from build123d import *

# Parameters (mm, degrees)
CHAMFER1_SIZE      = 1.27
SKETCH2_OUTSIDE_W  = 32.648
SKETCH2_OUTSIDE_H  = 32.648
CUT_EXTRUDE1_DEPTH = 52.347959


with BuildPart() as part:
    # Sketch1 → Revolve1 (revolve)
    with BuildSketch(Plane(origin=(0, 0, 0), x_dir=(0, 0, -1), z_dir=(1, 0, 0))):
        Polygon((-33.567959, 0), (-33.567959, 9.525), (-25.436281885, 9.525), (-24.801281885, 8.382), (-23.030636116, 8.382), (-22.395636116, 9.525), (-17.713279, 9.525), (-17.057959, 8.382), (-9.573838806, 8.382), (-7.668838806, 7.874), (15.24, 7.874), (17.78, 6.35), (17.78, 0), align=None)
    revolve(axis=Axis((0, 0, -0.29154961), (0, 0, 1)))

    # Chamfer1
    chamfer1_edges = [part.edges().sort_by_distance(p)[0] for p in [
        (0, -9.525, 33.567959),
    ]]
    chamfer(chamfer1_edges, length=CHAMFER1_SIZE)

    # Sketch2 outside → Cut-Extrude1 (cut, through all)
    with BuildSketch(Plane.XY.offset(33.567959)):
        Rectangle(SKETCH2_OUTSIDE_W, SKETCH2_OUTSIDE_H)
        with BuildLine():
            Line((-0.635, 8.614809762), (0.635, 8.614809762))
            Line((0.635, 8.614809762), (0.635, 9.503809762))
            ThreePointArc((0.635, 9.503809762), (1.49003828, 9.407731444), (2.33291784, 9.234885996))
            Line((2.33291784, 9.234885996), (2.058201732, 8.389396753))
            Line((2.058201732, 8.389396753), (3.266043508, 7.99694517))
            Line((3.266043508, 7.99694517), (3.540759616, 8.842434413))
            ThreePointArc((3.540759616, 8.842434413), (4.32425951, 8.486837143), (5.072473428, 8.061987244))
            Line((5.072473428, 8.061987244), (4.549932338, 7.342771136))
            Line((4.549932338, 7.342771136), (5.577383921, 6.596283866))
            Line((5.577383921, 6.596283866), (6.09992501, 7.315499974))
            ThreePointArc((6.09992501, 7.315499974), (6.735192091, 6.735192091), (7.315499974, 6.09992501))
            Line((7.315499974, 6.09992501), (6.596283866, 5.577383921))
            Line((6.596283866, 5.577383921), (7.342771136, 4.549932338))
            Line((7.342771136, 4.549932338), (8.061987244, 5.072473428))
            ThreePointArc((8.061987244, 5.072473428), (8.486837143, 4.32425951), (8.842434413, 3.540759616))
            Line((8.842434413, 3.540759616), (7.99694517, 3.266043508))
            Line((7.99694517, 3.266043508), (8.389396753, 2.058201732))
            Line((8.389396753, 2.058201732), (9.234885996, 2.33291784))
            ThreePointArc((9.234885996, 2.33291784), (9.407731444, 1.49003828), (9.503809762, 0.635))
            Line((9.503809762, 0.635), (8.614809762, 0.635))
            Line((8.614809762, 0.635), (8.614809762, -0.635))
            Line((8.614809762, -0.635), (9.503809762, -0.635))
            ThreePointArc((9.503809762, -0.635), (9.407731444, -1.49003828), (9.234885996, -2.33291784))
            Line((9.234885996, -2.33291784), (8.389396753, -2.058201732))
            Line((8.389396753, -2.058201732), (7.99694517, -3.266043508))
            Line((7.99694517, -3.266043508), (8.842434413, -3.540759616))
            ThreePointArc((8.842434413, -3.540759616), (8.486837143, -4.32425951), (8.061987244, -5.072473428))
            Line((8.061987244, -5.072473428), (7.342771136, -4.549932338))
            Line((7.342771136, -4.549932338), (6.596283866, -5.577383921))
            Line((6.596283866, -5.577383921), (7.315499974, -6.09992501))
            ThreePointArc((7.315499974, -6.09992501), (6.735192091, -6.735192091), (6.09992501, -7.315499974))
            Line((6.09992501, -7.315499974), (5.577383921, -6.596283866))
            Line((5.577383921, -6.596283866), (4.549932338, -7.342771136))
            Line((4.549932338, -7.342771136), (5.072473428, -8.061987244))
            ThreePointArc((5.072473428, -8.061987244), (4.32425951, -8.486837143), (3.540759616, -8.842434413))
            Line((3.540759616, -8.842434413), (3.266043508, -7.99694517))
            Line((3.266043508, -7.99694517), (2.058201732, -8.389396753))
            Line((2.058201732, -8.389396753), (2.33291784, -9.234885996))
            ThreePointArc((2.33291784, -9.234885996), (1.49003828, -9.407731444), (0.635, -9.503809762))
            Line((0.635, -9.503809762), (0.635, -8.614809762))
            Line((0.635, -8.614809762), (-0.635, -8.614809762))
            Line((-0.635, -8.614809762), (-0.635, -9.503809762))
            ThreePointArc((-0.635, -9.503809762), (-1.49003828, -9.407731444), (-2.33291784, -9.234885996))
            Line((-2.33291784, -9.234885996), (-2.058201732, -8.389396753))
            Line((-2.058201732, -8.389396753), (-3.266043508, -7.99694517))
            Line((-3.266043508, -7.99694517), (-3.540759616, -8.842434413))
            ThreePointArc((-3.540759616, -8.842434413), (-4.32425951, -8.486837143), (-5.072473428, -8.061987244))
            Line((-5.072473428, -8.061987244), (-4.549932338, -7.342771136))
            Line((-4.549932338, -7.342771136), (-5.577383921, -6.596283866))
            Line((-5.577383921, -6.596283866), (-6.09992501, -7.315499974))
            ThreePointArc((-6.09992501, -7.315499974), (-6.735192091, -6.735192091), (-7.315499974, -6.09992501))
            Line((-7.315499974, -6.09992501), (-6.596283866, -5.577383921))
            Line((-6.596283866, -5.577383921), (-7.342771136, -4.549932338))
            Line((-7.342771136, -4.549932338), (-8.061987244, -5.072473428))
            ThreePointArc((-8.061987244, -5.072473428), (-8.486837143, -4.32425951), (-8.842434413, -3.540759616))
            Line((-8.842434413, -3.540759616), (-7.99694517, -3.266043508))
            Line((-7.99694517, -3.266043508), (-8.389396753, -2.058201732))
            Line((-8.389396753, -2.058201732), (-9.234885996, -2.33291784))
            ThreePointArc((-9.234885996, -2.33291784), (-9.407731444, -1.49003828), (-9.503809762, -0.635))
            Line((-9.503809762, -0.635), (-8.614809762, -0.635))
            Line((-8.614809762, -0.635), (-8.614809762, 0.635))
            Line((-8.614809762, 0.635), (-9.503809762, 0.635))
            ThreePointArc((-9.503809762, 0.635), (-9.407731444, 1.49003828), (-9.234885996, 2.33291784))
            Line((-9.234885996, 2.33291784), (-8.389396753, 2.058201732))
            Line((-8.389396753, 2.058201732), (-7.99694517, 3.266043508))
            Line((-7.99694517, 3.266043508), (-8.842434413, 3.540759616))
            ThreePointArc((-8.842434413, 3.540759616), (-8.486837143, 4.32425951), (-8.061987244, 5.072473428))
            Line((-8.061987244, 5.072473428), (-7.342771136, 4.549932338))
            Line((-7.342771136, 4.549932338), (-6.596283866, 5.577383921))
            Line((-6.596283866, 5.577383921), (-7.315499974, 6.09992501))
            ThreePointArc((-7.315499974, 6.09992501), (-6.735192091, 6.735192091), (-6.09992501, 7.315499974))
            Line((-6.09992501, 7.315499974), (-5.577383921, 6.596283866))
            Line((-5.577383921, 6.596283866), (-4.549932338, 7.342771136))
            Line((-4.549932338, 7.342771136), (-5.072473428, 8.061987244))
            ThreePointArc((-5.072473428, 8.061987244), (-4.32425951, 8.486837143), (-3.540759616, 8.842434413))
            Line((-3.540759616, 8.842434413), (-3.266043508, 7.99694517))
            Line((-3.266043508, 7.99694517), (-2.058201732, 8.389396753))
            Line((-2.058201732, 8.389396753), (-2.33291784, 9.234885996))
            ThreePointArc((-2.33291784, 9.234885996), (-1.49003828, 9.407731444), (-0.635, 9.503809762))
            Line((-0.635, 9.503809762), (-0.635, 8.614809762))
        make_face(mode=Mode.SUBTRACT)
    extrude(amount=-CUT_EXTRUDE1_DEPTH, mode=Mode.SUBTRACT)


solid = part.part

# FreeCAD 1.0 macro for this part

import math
import FreeCAD as App
import Part
import Sketcher
from FreeCAD import Vector
Q = App.Units.Quantity


def edges_at(feature, points):
    """Names of the edges that pass closest to the given points."""
    edges = feature.Shape.Edges
    near = lambda p: min(range(len(edges)), key=lambda i: edges[i].distToShape(Part.Vertex(*p))[0])
    return sorted({f"Edge{near(p) + 1}" for p in points})


def add_polygon(sketch, points):
    """Adds a closed chain of lines whose ends are joined by coincident constraints."""
    first, n = sketch.GeometryCount, len(points)
    for a, b in zip(points, points[1:] + points[:1]):
        sketch.addGeometry(Part.LineSegment(App.Vector(*a, 0), App.Vector(*b, 0)), False)
    for i in range(n):
        sketch.addConstraint(Sketcher.Constraint("Coincident", first + i, 2, first + (i + 1) % n, 1))

doc = App.newDocument("Part")
body = doc.addObject("PartDesign::Body", "Body")

sketch1 = body.newObject("Sketcher::SketchObject", "Sketch")
sketch1.AttachmentSupport = (doc.getObject("YZ_Plane"), [""])
sketch1.MapMode = "FlatFace"
add_polygon(sketch1, [(9.5, 33.6), (0, 33.6), (0, -17.8), (6.3, -17.8), (7.9, -15.2), (7.9, 7.7), (8.4, 9.6), (8.4, 17.1), (9.5, 17.7), (9.5, 22.4), (8.4, 23), (8.4, 24.8), (9.5, 25.4)])
sketch1.addConstraint([
    Sketcher.Constraint("Horizontal", 0),
    Sketcher.Constraint("Vertical", 1),
    Sketcher.Constraint("Horizontal", 2),
    Sketcher.Constraint("Vertical", 4),
    Sketcher.Constraint("Vertical", 6),
    Sketcher.Constraint("Vertical", 8),
    Sketcher.Constraint("Vertical", 10),
    Sketcher.Constraint("Vertical", 12),
    Sketcher.Constraint("PointOnObject", 0, 2, -2),
    Sketcher.Constraint("Vertical", 6, 2, 9, 2),
    Sketcher.Constraint("Vertical", 8, 2, 11, 2),
    Sketcher.Constraint("Equal", 9, 11),
    Sketcher.Constraint("DistanceX", 2, 1, 2, 2, Q("0.25 in")),
    Sketcher.Constraint("DistanceY", 1, 2, -1, 1, Q("0.7 in")),
    Sketcher.Constraint("DistanceY", 3, 2, -1, 1, Q("0.6 in")),
    Sketcher.Constraint("DistanceX", 0, 2, 0, 1, Q("0.375 in")),
    Sketcher.Constraint("DistanceX", -1, 1, 3, 2, Q("0.31 in")),
    Sketcher.Constraint("DistanceX", -1, 1, 5, 2, Q("0.33 in")),
    Sketcher.Constraint("DistanceY", 6, 2, 0, 2, Q("0.65 in")),
    Sketcher.Constraint("DistanceY", 4, 2, 5, 2, Q("0.075 in")),
    Sketcher.Constraint("DistanceY", 8, 2, 9, 2, Q("0.025 in")),
    Sketcher.Constraint("DistanceY", 6, 2, 7, 2, Q("0.0258 in")),
    Sketcher.Constraint("DistanceY", 1, 2, 1, 1, 51.347959),
    Sketcher.Constraint("DistanceY", 4, 1, 4, 2, 22.908839),
    Sketcher.Constraint("DistanceY", 8, 1, 8, 2, 4.682357),
    Sketcher.Constraint("DistanceY", 10, 1, 10, 2, 1.770646),
])
revolution = body.newObject("PartDesign::Revolution", "Revolution")
revolution.Profile = sketch1
revolution.ReferenceAxis = (sketch1, ["V_Axis"])
revolution.Angle = 360
doc.recompute()

chamfer = body.newObject("PartDesign::Chamfer", "Chamfer")
chamfer.Base = (revolution, edges_at(revolution, [(0, -9.525, 33.568)]))
chamfer.Size = Q("0.05 in")

sketch2 = body.newObject("Sketcher::SketchObject", "Sketch001")
sketch2.AttachmentSupport = (doc.getObject("XY_Plane"), [""])
sketch2.MapMode = "FlatFace"
sketch2.AttachmentOffset = App.Placement(Vector(0, 0, 33.567959), App.Rotation())
add_polygon(sketch2, [(-16.3, 16.3), (-16.3, -16.3), (16.3, -16.3), (16.3, 16.3)])
sketch2.addGeometry(Part.LineSegment(Vector(-0.6, 9.5, 0), Vector(-0.6, 8.6, 0)), False)
sketch2.addGeometry(Part.LineSegment(Vector(-0.6, 8.6, 0), Vector(0.6, 8.6, 0)), False)
sketch2.addGeometry(Part.LineSegment(Vector(0.6, 8.6, 0), Vector(0.6, 9.5, 0)), False)
sketch2.addGeometry(Part.ArcOfCircle(Part.Circle(Vector(0, 0, 0), Vector(0, 0, 1), 9.5), math.radians(75.82), math.radians(86.18)), False)
sketch2.addGeometry(Part.LineSegment(Vector(2.3, 9.2, 0), Vector(2.1, 8.4, 0)), False)
sketch2.addGeometry(Part.LineSegment(Vector(2.1, 8.4, 0), Vector(3.3, 8, 0)), False)
sketch2.addGeometry(Part.LineSegment(Vector(3.3, 8, 0), Vector(3.5, 8.8, 0)), False)
sketch2.addGeometry(Part.ArcOfCircle(Part.Circle(Vector(0, 0, 0), Vector(0, 0, 1), 9.5), math.radians(57.82), math.radians(68.18)), False)
sketch2.addGeometry(Part.LineSegment(Vector(5.1, 8.1, 0), Vector(4.5, 7.3, 0)), False)
sketch2.addGeometry(Part.LineSegment(Vector(4.5, 7.3, 0), Vector(5.6, 6.6, 0)), False)
sketch2.addGeometry(Part.LineSegment(Vector(5.6, 6.6, 0), Vector(6.1, 7.3, 0)), False)
sketch2.addGeometry(Part.ArcOfCircle(Part.Circle(Vector(0, 0, 0), Vector(0, 0, 1), 9.5), math.radians(39.82), math.radians(50.18)), False)
sketch2.addGeometry(Part.LineSegment(Vector(7.3, 6.1, 0), Vector(6.6, 5.6, 0)), False)
sketch2.addGeometry(Part.LineSegment(Vector(6.6, 5.6, 0), Vector(7.3, 4.5, 0)), False)
sketch2.addGeometry(Part.LineSegment(Vector(7.3, 4.5, 0), Vector(8.1, 5.1, 0)), False)
sketch2.addGeometry(Part.ArcOfCircle(Part.Circle(Vector(0, 0, 0), Vector(0, 0, 1), 9.5), math.radians(21.82), math.radians(32.18)), False)
sketch2.addGeometry(Part.LineSegment(Vector(8.8, 3.5, 0), Vector(8, 3.3, 0)), False)
sketch2.addGeometry(Part.LineSegment(Vector(8, 3.3, 0), Vector(8.4, 2.1, 0)), False)
sketch2.addGeometry(Part.LineSegment(Vector(8.4, 2.1, 0), Vector(9.2, 2.3, 0)), False)
sketch2.addGeometry(Part.ArcOfCircle(Part.Circle(Vector(0, 0, 0), Vector(0, 0, 1), 9.5), math.radians(3.82), math.radians(14.18)), False)
sketch2.addGeometry(Part.LineSegment(Vector(9.5, 0.6, 0), Vector(8.6, 0.6, 0)), False)
sketch2.addGeometry(Part.LineSegment(Vector(8.6, 0.6, 0), Vector(8.6, -0.6, 0)), False)
sketch2.addGeometry(Part.LineSegment(Vector(8.6, -0.6, 0), Vector(9.5, -0.6, 0)), False)
sketch2.addGeometry(Part.ArcOfCircle(Part.Circle(Vector(0, 0, 0), Vector(0, 0, 1), 9.5), math.radians(-14.18), math.radians(-3.82)), False)
sketch2.addGeometry(Part.LineSegment(Vector(9.2, -2.3, 0), Vector(8.4, -2.1, 0)), False)
sketch2.addGeometry(Part.LineSegment(Vector(8.4, -2.1, 0), Vector(8, -3.3, 0)), False)
sketch2.addGeometry(Part.LineSegment(Vector(8, -3.3, 0), Vector(8.8, -3.5, 0)), False)
sketch2.addGeometry(Part.ArcOfCircle(Part.Circle(Vector(0, 0, 0), Vector(0, 0, 1), 9.5), math.radians(-32.18), math.radians(-21.82)), False)
sketch2.addGeometry(Part.LineSegment(Vector(8.1, -5.1, 0), Vector(7.3, -4.5, 0)), False)
sketch2.addGeometry(Part.LineSegment(Vector(7.3, -4.5, 0), Vector(6.6, -5.6, 0)), False)
sketch2.addGeometry(Part.LineSegment(Vector(6.6, -5.6, 0), Vector(7.3, -6.1, 0)), False)
sketch2.addGeometry(Part.ArcOfCircle(Part.Circle(Vector(0, 0, 0), Vector(0, 0, 1), 9.5), math.radians(-50.18), math.radians(-39.82)), False)
sketch2.addGeometry(Part.LineSegment(Vector(6.1, -7.3, 0), Vector(5.6, -6.6, 0)), False)
sketch2.addGeometry(Part.LineSegment(Vector(5.6, -6.6, 0), Vector(4.5, -7.3, 0)), False)
sketch2.addGeometry(Part.LineSegment(Vector(4.5, -7.3, 0), Vector(5.1, -8.1, 0)), False)
sketch2.addGeometry(Part.ArcOfCircle(Part.Circle(Vector(0, 0, 0), Vector(0, 0, 1), 9.5), math.radians(-68.18), math.radians(-57.82)), False)
sketch2.addGeometry(Part.LineSegment(Vector(3.5, -8.8, 0), Vector(3.3, -8, 0)), False)
sketch2.addGeometry(Part.LineSegment(Vector(3.3, -8, 0), Vector(2.1, -8.4, 0)), False)
sketch2.addGeometry(Part.LineSegment(Vector(2.1, -8.4, 0), Vector(2.3, -9.2, 0)), False)
sketch2.addGeometry(Part.ArcOfCircle(Part.Circle(Vector(0, 0, 0), Vector(0, 0, 1), 9.5), math.radians(-86.18), math.radians(-75.82)), False)
sketch2.addGeometry(Part.LineSegment(Vector(0.6, -9.5, 0), Vector(0.6, -8.6, 0)), False)
sketch2.addGeometry(Part.LineSegment(Vector(0.6, -8.6, 0), Vector(-0.6, -8.6, 0)), False)
sketch2.addGeometry(Part.LineSegment(Vector(-0.6, -8.6, 0), Vector(-0.6, -9.5, 0)), False)
sketch2.addGeometry(Part.ArcOfCircle(Part.Circle(Vector(0, 0, 0), Vector(0, 0, 1), 9.5), math.radians(-104.18), math.radians(-93.82)), False)
sketch2.addGeometry(Part.LineSegment(Vector(-2.3, -9.2, 0), Vector(-2.1, -8.4, 0)), False)
sketch2.addGeometry(Part.LineSegment(Vector(-2.1, -8.4, 0), Vector(-3.3, -8, 0)), False)
sketch2.addGeometry(Part.LineSegment(Vector(-3.3, -8, 0), Vector(-3.5, -8.8, 0)), False)
sketch2.addGeometry(Part.ArcOfCircle(Part.Circle(Vector(0, 0, 0), Vector(0, 0, 1), 9.5), math.radians(-122.18), math.radians(-111.82)), False)
sketch2.addGeometry(Part.LineSegment(Vector(-5.1, -8.1, 0), Vector(-4.5, -7.3, 0)), False)
sketch2.addGeometry(Part.LineSegment(Vector(-4.5, -7.3, 0), Vector(-5.6, -6.6, 0)), False)
sketch2.addGeometry(Part.LineSegment(Vector(-5.6, -6.6, 0), Vector(-6.1, -7.3, 0)), False)
sketch2.addGeometry(Part.ArcOfCircle(Part.Circle(Vector(0, 0, 0), Vector(0, 0, 1), 9.5), math.radians(-140.18), math.radians(-129.82)), False)
sketch2.addGeometry(Part.LineSegment(Vector(-7.3, -6.1, 0), Vector(-6.6, -5.6, 0)), False)
sketch2.addGeometry(Part.LineSegment(Vector(-6.6, -5.6, 0), Vector(-7.3, -4.5, 0)), False)
sketch2.addGeometry(Part.LineSegment(Vector(-7.3, -4.5, 0), Vector(-8.1, -5.1, 0)), False)
sketch2.addGeometry(Part.ArcOfCircle(Part.Circle(Vector(0, 0, 0), Vector(0, 0, 1), 9.5), math.radians(-158.18), math.radians(-147.82)), False)
sketch2.addGeometry(Part.LineSegment(Vector(-8.8, -3.5, 0), Vector(-8, -3.3, 0)), False)
sketch2.addGeometry(Part.LineSegment(Vector(-8, -3.3, 0), Vector(-8.4, -2.1, 0)), False)
sketch2.addGeometry(Part.LineSegment(Vector(-8.4, -2.1, 0), Vector(-9.2, -2.3, 0)), False)
sketch2.addGeometry(Part.ArcOfCircle(Part.Circle(Vector(0, 0, 0), Vector(0, 0, 1), 9.5), math.radians(-176.18), math.radians(-165.82)), False)
sketch2.addGeometry(Part.LineSegment(Vector(-9.5, -0.6, 0), Vector(-8.6, -0.6, 0)), False)
sketch2.addGeometry(Part.LineSegment(Vector(-8.6, -0.6, 0), Vector(-8.6, 0.6, 0)), False)
sketch2.addGeometry(Part.LineSegment(Vector(-8.6, 0.6, 0), Vector(-9.5, 0.6, 0)), False)
sketch2.addGeometry(Part.ArcOfCircle(Part.Circle(Vector(0, 0, 0), Vector(0, 0, 1), 9.5), math.radians(165.82), math.radians(176.18)), False)
sketch2.addGeometry(Part.LineSegment(Vector(-9.2, 2.3, 0), Vector(-8.4, 2.1, 0)), False)
sketch2.addGeometry(Part.LineSegment(Vector(-8.4, 2.1, 0), Vector(-8, 3.3, 0)), False)
sketch2.addGeometry(Part.LineSegment(Vector(-8, 3.3, 0), Vector(-8.8, 3.5, 0)), False)
sketch2.addGeometry(Part.ArcOfCircle(Part.Circle(Vector(0, 0, 0), Vector(0, 0, 1), 9.5), math.radians(147.82), math.radians(158.18)), False)
sketch2.addGeometry(Part.LineSegment(Vector(-8.1, 5.1, 0), Vector(-7.3, 4.5, 0)), False)
sketch2.addGeometry(Part.LineSegment(Vector(-7.3, 4.5, 0), Vector(-6.6, 5.6, 0)), False)
sketch2.addGeometry(Part.LineSegment(Vector(-6.6, 5.6, 0), Vector(-7.3, 6.1, 0)), False)
sketch2.addGeometry(Part.ArcOfCircle(Part.Circle(Vector(0, 0, 0), Vector(0, 0, 1), 9.5), math.radians(129.82), math.radians(140.18)), False)
sketch2.addGeometry(Part.LineSegment(Vector(-6.1, 7.3, 0), Vector(-5.6, 6.6, 0)), False)
sketch2.addGeometry(Part.LineSegment(Vector(-5.6, 6.6, 0), Vector(-4.5, 7.3, 0)), False)
sketch2.addGeometry(Part.LineSegment(Vector(-4.5, 7.3, 0), Vector(-5.1, 8.1, 0)), False)
sketch2.addGeometry(Part.ArcOfCircle(Part.Circle(Vector(0, 0, 0), Vector(0, 0, 1), 9.5), math.radians(111.82), math.radians(122.18)), False)
sketch2.addGeometry(Part.LineSegment(Vector(-3.5, 8.8, 0), Vector(-3.3, 8, 0)), False)
sketch2.addGeometry(Part.LineSegment(Vector(-3.3, 8, 0), Vector(-2.1, 8.4, 0)), False)
sketch2.addGeometry(Part.LineSegment(Vector(-2.1, 8.4, 0), Vector(-2.3, 9.2, 0)), False)
sketch2.addGeometry(Part.ArcOfCircle(Part.Circle(Vector(0, 0, 0), Vector(0, 0, 1), 9.5), math.radians(93.82), math.radians(104.18)), False)
sketch2.addConstraint([
    Sketcher.Constraint("Coincident", 4, 2, 5, 1),
    Sketcher.Constraint("Coincident", 5, 2, 6, 1),
    Sketcher.Constraint("Coincident", 6, 2, 7, 2),
    Sketcher.Constraint("Coincident", 7, 1, 8, 1),
    Sketcher.Constraint("Coincident", 8, 2, 9, 1),
    Sketcher.Constraint("Coincident", 9, 2, 10, 1),
    Sketcher.Constraint("Coincident", 10, 2, 11, 2),
    Sketcher.Constraint("Coincident", 11, 1, 12, 1),
    Sketcher.Constraint("Coincident", 12, 2, 13, 1),
    Sketcher.Constraint("Coincident", 13, 2, 14, 1),
    Sketcher.Constraint("Coincident", 14, 2, 15, 2),
    Sketcher.Constraint("Coincident", 15, 1, 16, 1),
    Sketcher.Constraint("Coincident", 16, 2, 17, 1),
    Sketcher.Constraint("Coincident", 17, 2, 18, 1),
    Sketcher.Constraint("Coincident", 18, 2, 19, 2),
    Sketcher.Constraint("Coincident", 19, 1, 20, 1),
    Sketcher.Constraint("Coincident", 20, 2, 21, 1),
    Sketcher.Constraint("Coincident", 21, 2, 22, 1),
    Sketcher.Constraint("Coincident", 22, 2, 23, 2),
    Sketcher.Constraint("Coincident", 23, 1, 24, 1),
    Sketcher.Constraint("Coincident", 24, 2, 25, 1),
    Sketcher.Constraint("Coincident", 25, 2, 26, 1),
    Sketcher.Constraint("Coincident", 26, 2, 27, 2),
    Sketcher.Constraint("Coincident", 27, 1, 28, 1),
    Sketcher.Constraint("Coincident", 28, 2, 29, 1),
    Sketcher.Constraint("Coincident", 29, 2, 30, 1),
    Sketcher.Constraint("Coincident", 30, 2, 31, 2),
    Sketcher.Constraint("Coincident", 31, 1, 32, 1),
    Sketcher.Constraint("Coincident", 32, 2, 33, 1),
    Sketcher.Constraint("Coincident", 33, 2, 34, 1),
    Sketcher.Constraint("Coincident", 34, 2, 35, 2),
    Sketcher.Constraint("Coincident", 35, 1, 36, 1),
    Sketcher.Constraint("Coincident", 36, 2, 37, 1),
    Sketcher.Constraint("Coincident", 37, 2, 38, 1),
    Sketcher.Constraint("Coincident", 38, 2, 39, 2),
    Sketcher.Constraint("Coincident", 39, 1, 40, 1),
    Sketcher.Constraint("Coincident", 40, 2, 41, 1),
    Sketcher.Constraint("Coincident", 41, 2, 42, 1),
    Sketcher.Constraint("Coincident", 42, 2, 43, 2),
    Sketcher.Constraint("Coincident", 43, 1, 44, 1),
    Sketcher.Constraint("Coincident", 44, 2, 45, 1),
    Sketcher.Constraint("Coincident", 45, 2, 46, 1),
    Sketcher.Constraint("Coincident", 46, 2, 47, 2),
    Sketcher.Constraint("Coincident", 47, 1, 48, 1),
    Sketcher.Constraint("Coincident", 48, 2, 49, 1),
    Sketcher.Constraint("Coincident", 49, 2, 50, 1),
    Sketcher.Constraint("Coincident", 50, 2, 51, 2),
    Sketcher.Constraint("Coincident", 51, 1, 52, 1),
    Sketcher.Constraint("Coincident", 52, 2, 53, 1),
    Sketcher.Constraint("Coincident", 53, 2, 54, 1),
    Sketcher.Constraint("Coincident", 54, 2, 55, 2),
    Sketcher.Constraint("Coincident", 55, 1, 56, 1),
    Sketcher.Constraint("Coincident", 56, 2, 57, 1),
    Sketcher.Constraint("Coincident", 57, 2, 58, 1),
    Sketcher.Constraint("Coincident", 58, 2, 59, 2),
    Sketcher.Constraint("Coincident", 59, 1, 60, 1),
    Sketcher.Constraint("Coincident", 60, 2, 61, 1),
    Sketcher.Constraint("Coincident", 61, 2, 62, 1),
    Sketcher.Constraint("Coincident", 62, 2, 63, 2),
    Sketcher.Constraint("Coincident", 63, 1, 64, 1),
    Sketcher.Constraint("Coincident", 64, 2, 65, 1),
    Sketcher.Constraint("Coincident", 65, 2, 66, 1),
    Sketcher.Constraint("Coincident", 66, 2, 67, 2),
    Sketcher.Constraint("Coincident", 67, 1, 68, 1),
    Sketcher.Constraint("Coincident", 68, 2, 69, 1),
    Sketcher.Constraint("Coincident", 69, 2, 70, 1),
    Sketcher.Constraint("Coincident", 70, 2, 71, 2),
    Sketcher.Constraint("Coincident", 71, 1, 72, 1),
    Sketcher.Constraint("Coincident", 72, 2, 73, 1),
    Sketcher.Constraint("Coincident", 73, 2, 74, 1),
    Sketcher.Constraint("Coincident", 74, 2, 75, 2),
    Sketcher.Constraint("Coincident", 75, 1, 76, 1),
    Sketcher.Constraint("Coincident", 76, 2, 77, 1),
    Sketcher.Constraint("Coincident", 77, 2, 78, 1),
    Sketcher.Constraint("Coincident", 78, 2, 79, 2),
    Sketcher.Constraint("Coincident", 79, 1, 80, 1),
    Sketcher.Constraint("Coincident", 80, 2, 81, 1),
    Sketcher.Constraint("Coincident", 81, 2, 82, 1),
    Sketcher.Constraint("Coincident", 82, 2, 83, 2),
    Sketcher.Constraint("Coincident", 83, 1, 4, 1),
    Sketcher.Constraint("Vertical", 0),
    Sketcher.Constraint("Horizontal", 1),
    Sketcher.Constraint("Vertical", 2),
    Sketcher.Constraint("Horizontal", 3),
    Sketcher.Constraint("Vertical", 4),
    Sketcher.Constraint("Horizontal", 5),
    Sketcher.Constraint("Vertical", 6),
    Sketcher.Constraint("Horizontal", 24),
    Sketcher.Constraint("Vertical", 25),
    Sketcher.Constraint("Horizontal", 26),
    Sketcher.Constraint("Vertical", 44),
    Sketcher.Constraint("Horizontal", 45),
    Sketcher.Constraint("Vertical", 46),
    Sketcher.Constraint("Horizontal", 64),
    Sketcher.Constraint("Vertical", 65),
    Sketcher.Constraint("Horizontal", 66),
    Sketcher.Constraint("Coincident", 7, 3, -1, 1),
    Sketcher.Constraint("Coincident", 11, 3, -1, 1),
    Sketcher.Constraint("Coincident", 15, 3, -1, 1),
    Sketcher.Constraint("Coincident", 19, 3, -1, 1),
    Sketcher.Constraint("Coincident", 23, 3, -1, 1),
    Sketcher.Constraint("Coincident", 27, 3, -1, 1),
    Sketcher.Constraint("Coincident", 31, 3, -1, 1),
    Sketcher.Constraint("Coincident", 35, 3, -1, 1),
    Sketcher.Constraint("Coincident", 39, 3, -1, 1),
    Sketcher.Constraint("Coincident", 43, 3, -1, 1),
    Sketcher.Constraint("Coincident", 47, 3, -1, 1),
    Sketcher.Constraint("Coincident", 51, 3, -1, 1),
    Sketcher.Constraint("Coincident", 55, 3, -1, 1),
    Sketcher.Constraint("Coincident", 59, 3, -1, 1),
    Sketcher.Constraint("Coincident", 63, 3, -1, 1),
    Sketcher.Constraint("Coincident", 67, 3, -1, 1),
    Sketcher.Constraint("Coincident", 71, 3, -1, 1),
    Sketcher.Constraint("Coincident", 75, 3, -1, 1),
    Sketcher.Constraint("Coincident", 79, 3, -1, 1),
    Sketcher.Constraint("Coincident", 83, 3, -1, 1),
    Sketcher.Constraint("Equal", 7, 11),
    Sketcher.Constraint("Equal", 11, 15),
    Sketcher.Constraint("Equal", 15, 19),
    Sketcher.Constraint("Equal", 19, 23),
    Sketcher.Constraint("Equal", 23, 27),
    Sketcher.Constraint("Equal", 27, 31),
    Sketcher.Constraint("Equal", 31, 35),
    Sketcher.Constraint("Equal", 35, 39),
    Sketcher.Constraint("Equal", 39, 43),
    Sketcher.Constraint("Equal", 43, 47),
    Sketcher.Constraint("Equal", 47, 51),
    Sketcher.Constraint("Equal", 51, 55),
    Sketcher.Constraint("Equal", 55, 59),
    Sketcher.Constraint("Equal", 59, 63),
    Sketcher.Constraint("Equal", 63, 67),
    Sketcher.Constraint("Equal", 67, 71),
    Sketcher.Constraint("Equal", 71, 75),
    Sketcher.Constraint("Equal", 75, 79),
    Sketcher.Constraint("Equal", 79, 83),
    Sketcher.Constraint("Symmetric", 0, 2, 2, 2, -1, 1),
    Sketcher.Constraint("Symmetric", 4, 2, 44, 2, -1, 1),
    Sketcher.Constraint("Symmetric", 8, 2, 48, 2, -1, 1),
    Sketcher.Constraint("Symmetric", 9, 2, 49, 2, -1, 1),
    Sketcher.Constraint("Symmetric", 12, 2, 52, 2, -1, 1),
    Sketcher.Constraint("Symmetric", 13, 2, 53, 2, -1, 1),
    Sketcher.Constraint("Symmetric", 16, 2, 56, 2, -1, 1),
    Sketcher.Constraint("Symmetric", 17, 2, 57, 2, -1, 1),
    Sketcher.Constraint("Symmetric", 20, 2, 60, 2, -1, 1),
    Sketcher.Constraint("Symmetric", 21, 2, 61, 2, -1, 1),
    Sketcher.Constraint("Symmetric", 24, 2, 64, 2, -1, 1),
    Sketcher.Constraint("Symmetric", 28, 2, 68, 2, -1, 1),
    Sketcher.Constraint("Symmetric", 29, 2, 69, 2, -1, 1),
    Sketcher.Constraint("Symmetric", 32, 2, 72, 2, -1, 1),
    Sketcher.Constraint("Symmetric", 33, 2, 73, 2, -1, 1),
    Sketcher.Constraint("Symmetric", 36, 2, 76, 2, -1, 1),
    Sketcher.Constraint("Symmetric", 37, 2, 77, 2, -1, 1),
    Sketcher.Constraint("Symmetric", 40, 2, 80, 2, -1, 1),
    Sketcher.Constraint("Symmetric", 41, 2, 81, 2, -1, 1),
    Sketcher.Constraint("Symmetric", 41, 2, 48, 2, -2),
    Sketcher.Constraint("Symmetric", 40, 2, 49, 2, -2),
    Sketcher.Constraint("Symmetric", 37, 2, 52, 2, -2),
    Sketcher.Constraint("Symmetric", 36, 2, 53, 2, -2),
    Sketcher.Constraint("Symmetric", 33, 2, 56, 2, -2),
    Sketcher.Constraint("Symmetric", 32, 2, 57, 2, -2),
    Sketcher.Constraint("Symmetric", 29, 2, 60, 2, -2),
    Sketcher.Constraint("Symmetric", 28, 2, 61, 2, -2),
    Sketcher.Constraint("Perpendicular", 8, 9),
    Sketcher.Constraint("Perpendicular", 9, 10),
    Sketcher.Constraint("Perpendicular", 12, 13),
    Sketcher.Constraint("Perpendicular", 13, 14),
    Sketcher.Constraint("Perpendicular", 16, 17),
    Sketcher.Constraint("Perpendicular", 17, 18),
    Sketcher.Constraint("Perpendicular", 20, 21),
    Sketcher.Constraint("Perpendicular", 21, 22),
    Sketcher.Constraint("Perpendicular", 10, 28),
    Sketcher.Constraint("Perpendicular", 28, 29),
    Sketcher.Constraint("Perpendicular", 29, 30),
    Sketcher.Constraint("Perpendicular", 14, 32),
    Sketcher.Constraint("Perpendicular", 32, 33),
    Sketcher.Constraint("Perpendicular", 33, 34),
    Sketcher.Constraint("Perpendicular", 18, 36),
    Sketcher.Constraint("Perpendicular", 37, 38),
    Sketcher.Constraint("Perpendicular", 22, 40),
    Sketcher.Constraint("Perpendicular", 41, 42),
    Sketcher.Constraint("Perpendicular", 30, 48),
    Sketcher.Constraint("Perpendicular", 49, 50),
    Sketcher.Constraint("Perpendicular", 34, 52),
    Sketcher.Constraint("Perpendicular", 53, 54),
    Sketcher.Constraint("Perpendicular", 38, 56),
    Sketcher.Constraint("Perpendicular", 57, 58),
    Sketcher.Constraint("Perpendicular", 42, 60),
    Sketcher.Constraint("Perpendicular", 61, 62),
    Sketcher.Constraint("Perpendicular", 50, 68),
    Sketcher.Constraint("Perpendicular", 69, 70),
    Sketcher.Constraint("Perpendicular", 54, 72),
    Sketcher.Constraint("Perpendicular", 73, 74),
    Sketcher.Constraint("Perpendicular", 58, 76),
    Sketcher.Constraint("Perpendicular", 77, 78),
    Sketcher.Constraint("Perpendicular", 62, 80),
    Sketcher.Constraint("Perpendicular", 81, 82),
    Sketcher.Constraint("Horizontal", 43, 1, 46, 2),
    Sketcher.Constraint("Horizontal", 26, 2, 63, 1),
    Sketcher.Constraint("Horizontal", 24, 2, 65, 2),
    Sketcher.Constraint("Horizontal", 6, 2, 83, 1),
    Sketcher.Constraint("Equal", 3, 0),
    Sketcher.Constraint("Equal", 66, 4),
    Sketcher.Constraint("Equal", 45, 25),
    Sketcher.Constraint("Equal", 8, 10),
    Sketcher.Constraint("Equal", 10, 12),
    Sketcher.Constraint("Equal", 9, 13),
    Sketcher.Constraint("Equal", 12, 14),
    Sketcher.Constraint("Equal", 14, 16),
    Sketcher.Constraint("Equal", 13, 17),
    Sketcher.Constraint("Equal", 16, 18),
    Sketcher.Constraint("Equal", 18, 20),
    Sketcher.Constraint("Equal", 17, 21),
    Sketcher.Constraint("Equal", 20, 22),
    Sketcher.Constraint("Angle", 8, Q("-108 deg")),
    Sketcher.Constraint("Angle", 12, Q("-126 deg")),
    Sketcher.Constraint("Radius", 7, Q("0.375 in")),
    Sketcher.Constraint("DistanceX", 5, 1, 5, 2, Q("0.05 in")),
    Sketcher.Constraint("Distance", 9, Q("0.05 in")),
    Sketcher.Constraint("DistanceX", 24, 2, 24, 1, Q("0.035 in")),
    Sketcher.Constraint("Distance", 8, Q("0.035 in")),
    Sketcher.Constraint("DistanceX", 1, 1, 1, 2, 32.648),
])
pocket1 = body.newObject("PartDesign::Pocket", "Pocket")
pocket1.Profile = sketch2
pocket1.Type = "ThroughAll"

doc.recompute()
